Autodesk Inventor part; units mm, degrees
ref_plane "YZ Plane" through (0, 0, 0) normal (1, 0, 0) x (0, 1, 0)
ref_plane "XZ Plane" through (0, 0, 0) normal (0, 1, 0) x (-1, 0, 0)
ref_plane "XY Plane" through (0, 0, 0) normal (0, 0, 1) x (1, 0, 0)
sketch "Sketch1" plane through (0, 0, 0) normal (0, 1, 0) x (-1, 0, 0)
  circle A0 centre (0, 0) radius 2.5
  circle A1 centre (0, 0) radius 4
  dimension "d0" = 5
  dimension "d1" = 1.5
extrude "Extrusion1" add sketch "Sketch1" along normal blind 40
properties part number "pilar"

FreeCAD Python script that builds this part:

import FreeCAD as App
import Part
import Sketcher
from FreeCAD import Vector

doc = App.newDocument("Part")
body = doc.addObject("PartDesign::Body", "Body")

# Sketch on XZ plane
sketch1 = body.newObject("Sketcher::SketchObject", "Sketch")
sketch1.AttachmentSupport = (doc.getObject("XZ_Plane"), [""])
sketch1.MapMode = "FlatFace"
sketch1.addGeometry([
    Part.Circle(Vector(0, 0, 0), Vector(0, 0, 1), 4),
    Part.Circle(Vector(0, 0, 0), Vector(0, 0, 1), 2.5),
], False)
sketch1.addConstraint([
    Sketcher.Constraint("Coincident", 0, 3, -1, 1),
    Sketcher.Constraint("Coincident", 1, 3, -1, 1),
    Sketcher.Constraint("Diameter", 1, 5.0),
    Sketcher.Constraint("Diameter", 0, 8.0),
])
pad1 = body.newObject("PartDesign::Pad", "Pad")
pad1.Profile = sketch1
pad1.Length = 40
pad1.Reversed = True

doc.recompute()
